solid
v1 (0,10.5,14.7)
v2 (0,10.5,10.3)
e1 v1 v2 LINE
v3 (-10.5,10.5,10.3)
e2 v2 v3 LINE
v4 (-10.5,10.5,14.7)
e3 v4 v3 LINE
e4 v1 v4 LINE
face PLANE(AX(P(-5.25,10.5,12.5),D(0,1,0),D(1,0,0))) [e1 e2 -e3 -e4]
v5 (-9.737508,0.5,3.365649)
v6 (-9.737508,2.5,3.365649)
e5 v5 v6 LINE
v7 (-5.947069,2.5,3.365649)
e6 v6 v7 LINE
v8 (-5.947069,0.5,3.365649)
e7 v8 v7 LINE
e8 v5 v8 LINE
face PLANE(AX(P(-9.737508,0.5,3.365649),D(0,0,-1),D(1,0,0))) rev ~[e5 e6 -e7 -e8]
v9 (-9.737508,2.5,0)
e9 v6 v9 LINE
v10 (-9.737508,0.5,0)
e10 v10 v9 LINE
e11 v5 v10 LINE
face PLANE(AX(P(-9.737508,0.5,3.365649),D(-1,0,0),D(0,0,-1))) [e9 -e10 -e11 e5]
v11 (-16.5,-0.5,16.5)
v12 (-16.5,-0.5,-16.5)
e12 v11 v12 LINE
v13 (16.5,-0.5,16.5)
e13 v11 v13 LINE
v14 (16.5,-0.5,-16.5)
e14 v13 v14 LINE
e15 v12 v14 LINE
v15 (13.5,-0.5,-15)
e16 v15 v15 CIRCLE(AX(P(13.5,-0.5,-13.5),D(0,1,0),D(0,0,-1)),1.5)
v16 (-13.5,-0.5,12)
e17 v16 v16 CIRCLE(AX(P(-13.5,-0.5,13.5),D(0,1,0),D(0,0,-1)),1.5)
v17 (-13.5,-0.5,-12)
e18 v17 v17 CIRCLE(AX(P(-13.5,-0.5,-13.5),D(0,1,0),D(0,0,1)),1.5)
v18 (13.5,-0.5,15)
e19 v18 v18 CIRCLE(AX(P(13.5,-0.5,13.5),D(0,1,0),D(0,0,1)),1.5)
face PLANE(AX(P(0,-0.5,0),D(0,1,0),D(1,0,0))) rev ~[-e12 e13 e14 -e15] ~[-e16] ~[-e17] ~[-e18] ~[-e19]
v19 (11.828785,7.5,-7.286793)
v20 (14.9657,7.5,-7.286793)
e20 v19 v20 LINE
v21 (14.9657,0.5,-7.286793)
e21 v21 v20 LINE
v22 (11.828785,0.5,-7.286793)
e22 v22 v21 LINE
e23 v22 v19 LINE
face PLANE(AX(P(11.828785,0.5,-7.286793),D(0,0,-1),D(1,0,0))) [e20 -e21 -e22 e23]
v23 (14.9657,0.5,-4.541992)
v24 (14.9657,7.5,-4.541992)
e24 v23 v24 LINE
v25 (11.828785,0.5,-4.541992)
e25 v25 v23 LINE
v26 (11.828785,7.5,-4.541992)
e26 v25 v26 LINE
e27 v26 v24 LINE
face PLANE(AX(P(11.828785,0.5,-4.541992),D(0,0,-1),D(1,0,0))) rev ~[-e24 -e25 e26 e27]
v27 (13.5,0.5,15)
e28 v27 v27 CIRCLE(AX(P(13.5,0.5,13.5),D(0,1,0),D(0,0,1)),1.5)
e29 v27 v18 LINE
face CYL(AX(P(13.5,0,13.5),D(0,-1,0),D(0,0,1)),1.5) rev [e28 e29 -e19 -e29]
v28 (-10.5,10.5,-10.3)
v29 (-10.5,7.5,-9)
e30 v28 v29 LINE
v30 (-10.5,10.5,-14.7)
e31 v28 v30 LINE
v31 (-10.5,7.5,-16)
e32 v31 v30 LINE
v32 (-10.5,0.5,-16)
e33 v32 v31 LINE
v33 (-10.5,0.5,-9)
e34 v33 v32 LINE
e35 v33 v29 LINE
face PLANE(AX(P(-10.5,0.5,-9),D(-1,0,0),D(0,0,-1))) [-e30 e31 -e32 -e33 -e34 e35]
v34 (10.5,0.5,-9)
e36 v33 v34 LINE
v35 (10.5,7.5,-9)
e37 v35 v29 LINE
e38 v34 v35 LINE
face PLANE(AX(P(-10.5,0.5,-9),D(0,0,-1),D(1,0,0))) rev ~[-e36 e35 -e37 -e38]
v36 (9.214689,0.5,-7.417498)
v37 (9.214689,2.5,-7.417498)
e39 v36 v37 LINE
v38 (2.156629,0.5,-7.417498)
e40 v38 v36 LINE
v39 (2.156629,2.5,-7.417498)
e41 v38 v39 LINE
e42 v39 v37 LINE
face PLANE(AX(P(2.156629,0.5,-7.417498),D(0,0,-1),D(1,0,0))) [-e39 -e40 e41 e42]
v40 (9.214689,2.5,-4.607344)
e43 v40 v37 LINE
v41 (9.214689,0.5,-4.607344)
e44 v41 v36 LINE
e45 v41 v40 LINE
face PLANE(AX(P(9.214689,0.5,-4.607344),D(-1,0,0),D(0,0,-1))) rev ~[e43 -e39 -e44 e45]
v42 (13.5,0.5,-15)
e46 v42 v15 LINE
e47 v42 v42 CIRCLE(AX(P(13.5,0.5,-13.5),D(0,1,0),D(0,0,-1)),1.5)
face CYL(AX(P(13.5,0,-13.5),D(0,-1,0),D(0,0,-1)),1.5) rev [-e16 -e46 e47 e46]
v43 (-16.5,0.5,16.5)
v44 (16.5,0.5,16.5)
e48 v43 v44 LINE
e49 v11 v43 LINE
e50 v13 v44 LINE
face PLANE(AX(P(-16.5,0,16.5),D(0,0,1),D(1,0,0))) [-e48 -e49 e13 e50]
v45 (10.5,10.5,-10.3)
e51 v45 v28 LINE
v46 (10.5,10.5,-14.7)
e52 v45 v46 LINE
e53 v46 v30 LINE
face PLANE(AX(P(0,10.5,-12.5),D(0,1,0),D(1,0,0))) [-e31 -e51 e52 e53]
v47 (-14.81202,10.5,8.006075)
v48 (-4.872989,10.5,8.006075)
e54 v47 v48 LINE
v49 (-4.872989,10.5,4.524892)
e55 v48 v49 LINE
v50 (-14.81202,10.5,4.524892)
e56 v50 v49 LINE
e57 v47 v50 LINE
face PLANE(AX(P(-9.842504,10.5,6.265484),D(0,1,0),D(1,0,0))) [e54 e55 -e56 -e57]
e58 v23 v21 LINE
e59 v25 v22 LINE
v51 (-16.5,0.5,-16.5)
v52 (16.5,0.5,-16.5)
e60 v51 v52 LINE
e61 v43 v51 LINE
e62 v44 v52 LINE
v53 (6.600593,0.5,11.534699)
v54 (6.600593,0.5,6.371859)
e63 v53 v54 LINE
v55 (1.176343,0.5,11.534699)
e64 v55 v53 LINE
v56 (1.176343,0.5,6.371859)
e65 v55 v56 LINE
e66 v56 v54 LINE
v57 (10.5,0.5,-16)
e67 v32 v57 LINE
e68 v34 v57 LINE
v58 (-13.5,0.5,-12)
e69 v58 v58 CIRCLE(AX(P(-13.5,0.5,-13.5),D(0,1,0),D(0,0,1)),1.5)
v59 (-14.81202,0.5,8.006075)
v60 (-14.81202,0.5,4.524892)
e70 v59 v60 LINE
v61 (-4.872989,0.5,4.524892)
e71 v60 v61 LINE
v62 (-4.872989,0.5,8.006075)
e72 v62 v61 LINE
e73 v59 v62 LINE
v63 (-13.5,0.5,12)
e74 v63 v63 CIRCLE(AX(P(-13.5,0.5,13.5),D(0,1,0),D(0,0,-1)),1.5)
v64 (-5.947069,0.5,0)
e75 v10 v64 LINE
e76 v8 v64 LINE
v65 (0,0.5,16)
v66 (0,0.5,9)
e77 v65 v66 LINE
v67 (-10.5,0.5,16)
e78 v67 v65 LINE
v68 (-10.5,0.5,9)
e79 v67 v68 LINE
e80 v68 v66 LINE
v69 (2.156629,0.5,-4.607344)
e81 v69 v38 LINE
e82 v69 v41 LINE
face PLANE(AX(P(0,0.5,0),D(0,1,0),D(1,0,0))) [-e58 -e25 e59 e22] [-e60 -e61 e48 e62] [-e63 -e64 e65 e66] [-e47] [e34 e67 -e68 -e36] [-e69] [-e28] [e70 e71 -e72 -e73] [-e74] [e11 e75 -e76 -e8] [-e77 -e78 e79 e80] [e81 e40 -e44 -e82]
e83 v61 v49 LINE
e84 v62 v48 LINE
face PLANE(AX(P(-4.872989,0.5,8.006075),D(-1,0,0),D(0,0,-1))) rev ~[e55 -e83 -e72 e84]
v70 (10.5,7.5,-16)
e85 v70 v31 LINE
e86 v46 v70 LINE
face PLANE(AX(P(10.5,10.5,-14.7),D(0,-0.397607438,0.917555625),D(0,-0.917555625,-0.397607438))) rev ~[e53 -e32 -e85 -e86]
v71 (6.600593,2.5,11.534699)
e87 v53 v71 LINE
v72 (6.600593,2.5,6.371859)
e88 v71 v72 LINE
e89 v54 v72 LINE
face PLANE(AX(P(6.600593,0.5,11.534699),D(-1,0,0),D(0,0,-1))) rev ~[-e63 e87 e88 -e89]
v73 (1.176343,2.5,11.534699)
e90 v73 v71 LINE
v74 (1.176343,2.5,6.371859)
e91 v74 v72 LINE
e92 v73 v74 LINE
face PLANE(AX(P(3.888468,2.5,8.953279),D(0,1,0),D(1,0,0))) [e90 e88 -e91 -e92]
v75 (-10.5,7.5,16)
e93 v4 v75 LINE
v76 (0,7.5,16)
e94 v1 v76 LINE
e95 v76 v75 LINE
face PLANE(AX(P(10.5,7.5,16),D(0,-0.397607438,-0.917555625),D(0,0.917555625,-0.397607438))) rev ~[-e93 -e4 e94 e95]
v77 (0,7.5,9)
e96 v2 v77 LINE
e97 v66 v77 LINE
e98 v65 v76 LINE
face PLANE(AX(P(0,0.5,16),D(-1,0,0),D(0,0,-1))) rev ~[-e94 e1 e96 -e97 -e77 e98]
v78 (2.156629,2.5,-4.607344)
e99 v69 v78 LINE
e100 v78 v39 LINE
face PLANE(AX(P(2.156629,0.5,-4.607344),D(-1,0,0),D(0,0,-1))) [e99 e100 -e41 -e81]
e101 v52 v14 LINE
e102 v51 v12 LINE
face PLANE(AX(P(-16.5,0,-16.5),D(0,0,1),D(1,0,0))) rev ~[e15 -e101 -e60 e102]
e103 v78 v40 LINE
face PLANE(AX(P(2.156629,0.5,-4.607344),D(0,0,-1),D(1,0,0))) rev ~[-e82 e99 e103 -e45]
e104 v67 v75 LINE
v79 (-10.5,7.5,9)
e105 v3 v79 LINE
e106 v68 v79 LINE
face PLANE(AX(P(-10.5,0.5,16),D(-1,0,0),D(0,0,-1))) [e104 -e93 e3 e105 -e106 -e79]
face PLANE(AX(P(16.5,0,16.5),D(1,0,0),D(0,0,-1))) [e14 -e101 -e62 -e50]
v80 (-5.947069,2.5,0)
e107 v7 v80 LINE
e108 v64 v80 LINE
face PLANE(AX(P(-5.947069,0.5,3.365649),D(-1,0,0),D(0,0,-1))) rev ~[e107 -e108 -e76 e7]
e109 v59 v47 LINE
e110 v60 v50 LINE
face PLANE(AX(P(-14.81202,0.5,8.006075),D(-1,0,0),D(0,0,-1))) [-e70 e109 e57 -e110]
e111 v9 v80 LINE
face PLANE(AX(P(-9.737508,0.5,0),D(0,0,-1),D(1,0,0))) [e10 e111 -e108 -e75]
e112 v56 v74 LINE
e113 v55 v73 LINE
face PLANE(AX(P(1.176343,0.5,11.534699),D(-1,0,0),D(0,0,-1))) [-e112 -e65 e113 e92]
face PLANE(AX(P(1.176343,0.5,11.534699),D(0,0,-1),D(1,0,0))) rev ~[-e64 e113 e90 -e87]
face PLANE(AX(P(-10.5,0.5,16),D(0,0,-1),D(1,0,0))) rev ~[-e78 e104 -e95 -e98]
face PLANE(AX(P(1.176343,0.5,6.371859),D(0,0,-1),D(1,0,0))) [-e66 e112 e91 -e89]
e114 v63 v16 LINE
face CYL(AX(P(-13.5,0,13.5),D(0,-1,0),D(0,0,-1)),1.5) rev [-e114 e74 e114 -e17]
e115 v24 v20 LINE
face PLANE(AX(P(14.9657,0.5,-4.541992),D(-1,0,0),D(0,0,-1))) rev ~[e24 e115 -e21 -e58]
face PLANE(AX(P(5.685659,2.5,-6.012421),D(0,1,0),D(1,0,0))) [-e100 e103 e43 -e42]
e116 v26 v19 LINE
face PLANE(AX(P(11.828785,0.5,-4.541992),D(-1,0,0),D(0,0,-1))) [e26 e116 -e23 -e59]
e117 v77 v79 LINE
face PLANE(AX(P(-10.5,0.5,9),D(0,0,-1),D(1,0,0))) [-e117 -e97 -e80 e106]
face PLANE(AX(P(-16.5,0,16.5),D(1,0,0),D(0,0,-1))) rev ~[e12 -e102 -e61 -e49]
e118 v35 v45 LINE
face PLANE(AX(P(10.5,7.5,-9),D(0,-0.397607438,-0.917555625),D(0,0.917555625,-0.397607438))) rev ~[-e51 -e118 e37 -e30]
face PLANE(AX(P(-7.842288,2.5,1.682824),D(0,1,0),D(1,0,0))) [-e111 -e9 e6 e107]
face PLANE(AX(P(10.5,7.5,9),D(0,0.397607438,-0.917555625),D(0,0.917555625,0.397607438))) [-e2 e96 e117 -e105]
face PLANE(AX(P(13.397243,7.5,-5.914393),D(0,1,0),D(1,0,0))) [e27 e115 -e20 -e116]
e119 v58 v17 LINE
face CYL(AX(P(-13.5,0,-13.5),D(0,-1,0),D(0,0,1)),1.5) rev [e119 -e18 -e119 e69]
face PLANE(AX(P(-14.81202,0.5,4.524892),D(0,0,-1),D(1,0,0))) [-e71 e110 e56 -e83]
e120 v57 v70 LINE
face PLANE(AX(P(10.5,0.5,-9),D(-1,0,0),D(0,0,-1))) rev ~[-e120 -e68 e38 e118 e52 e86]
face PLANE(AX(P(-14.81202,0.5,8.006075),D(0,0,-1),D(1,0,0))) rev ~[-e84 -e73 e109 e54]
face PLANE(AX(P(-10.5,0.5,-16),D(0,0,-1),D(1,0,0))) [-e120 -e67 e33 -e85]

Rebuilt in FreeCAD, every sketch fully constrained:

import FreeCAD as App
import Part
import Sketcher

doc = App.newDocument("Part")
body = doc.addObject("PartDesign::Body", "Body")

sketch1 = doc.addObject("Sketcher::SketchObject", "Sketch")
body.addObject(sketch1)
sketch1.AttachmentSupport = (doc.XZ_Plane, [""])
sketch1.MapMode = "FlatFace"
sketch1.addGeometry([
    Part.LineSegment(App.Vector(-16.5, -16.5, 0), App.Vector(-16.5, 16.5, 0)),
    Part.LineSegment(App.Vector(-16.5, 16.5, 0), App.Vector(16.5, 16.5, 0)),
    Part.LineSegment(App.Vector(16.5, 16.5, 0), App.Vector(16.5, -16.5, 0)),
    Part.LineSegment(App.Vector(16.5, -16.5, 0), App.Vector(-16.5, -16.5, 0)),
    Part.Circle(App.Vector(-13.5, 13.5, 0), App.Vector(0, 0, 1), 1.5),
    Part.Circle(App.Vector(13.5, 13.5, 0), App.Vector(0, 0, 1), 1.5),
    Part.Circle(App.Vector(-13.5, -13.5, 0), App.Vector(0, 0, 1), 1.5),
    Part.Circle(App.Vector(13.5, -13.5, 0), App.Vector(0, 0, 1), 1.5),
], False)
sketch1.addConstraint([
    Sketcher.Constraint("Coincident", 0, 2, 1, 1),
    Sketcher.Constraint("Coincident", 1, 2, 2, 1),
    Sketcher.Constraint("Coincident", 2, 2, 3, 1),
    Sketcher.Constraint("Coincident", 3, 2, 0, 1),
    Sketcher.Constraint("Vertical", 0),
    Sketcher.Constraint("Horizontal", 1),
    Sketcher.Constraint("Vertical", 2),
    Sketcher.Constraint("Horizontal", 3),
    Sketcher.Constraint("Equal", 4, 5),
    Sketcher.Constraint("Equal", 5, 6),
    Sketcher.Constraint("Equal", 6, 7),
    Sketcher.Constraint("Symmetric", 5, 3, 6, 3, -1, 1),
    Sketcher.Constraint("Symmetric", 4, 3, 7, 3, -1, 1),
    Sketcher.Constraint("Symmetric", 0, 2, 2, 2, -1, 1),
    Sketcher.Constraint("Symmetric", 4, 3, 5, 3, -2),
    Sketcher.Constraint("Equal", 3, 0),
    Sketcher.Constraint("Diameter", 4, 3.0),
    Sketcher.Constraint("DistanceX", 1, 1, 1, 2, 33.0),
    Sketcher.Constraint("DistanceX", 4, 3, 5, 3, 27.0),
    Sketcher.Constraint("DistanceY", 6, 3, 4, 3, 27.0),
])
pad1 = doc.addObject("PartDesign::Pad", "Pad")
body.addObject(pad1)
pad1.Profile = sketch1
pad1.Length = 1
pad1.Midplane = True

sketch2 = doc.addObject("Sketcher::SketchObject", "Sketch001")
body.addObject(sketch2)
sketch2.AttachmentSupport = (doc.XZ_Plane, [""])
sketch2.MapMode = "FlatFace"
sketch2.AttachmentOffset = App.Placement(App.Vector(0, 0, -0.5), App.Rotation())
sketch2.addGeometry([
    Part.LineSegment(App.Vector(-10.5, -16, 0), App.Vector(-10.5, -9, 0)),
    Part.LineSegment(App.Vector(-10.5, -9, 0), App.Vector(10.5, -9, 0)),
    Part.LineSegment(App.Vector(10.5, -9, 0), App.Vector(10.5, -16, 0)),
    Part.LineSegment(App.Vector(10.5, -16, 0), App.Vector(-10.5, -16, 0)),
    Part.LineSegment(App.Vector(-10.5, 9, 0), App.Vector(-10.5, 16, 0)),
    Part.LineSegment(App.Vector(-10.5, 16, 0), App.Vector(0, 16, 0)),
    Part.LineSegment(App.Vector(0, 16, 0), App.Vector(0, 9, 0)),
    Part.LineSegment(App.Vector(0, 9, 0), App.Vector(-10.5, 9, 0)),
    Part.LineSegment(App.Vector(-14.8, 4.5, 0), App.Vector(-14.8, 8, 0)),
    Part.LineSegment(App.Vector(-14.8, 8, 0), App.Vector(-4.9, 8, 0)),
    Part.LineSegment(App.Vector(-4.9, 8, 0), App.Vector(-4.9, 4.5, 0)),
    Part.LineSegment(App.Vector(-4.9, 4.5, 0), App.Vector(-14.8, 4.5, 0)),
], False)
sketch2.addConstraint([
    Sketcher.Constraint("Coincident", 0, 2, 1, 1),
    Sketcher.Constraint("Coincident", 1, 2, 2, 1),
    Sketcher.Constraint("Coincident", 2, 2, 3, 1),
    Sketcher.Constraint("Coincident", 3, 2, 0, 1),
    Sketcher.Constraint("Coincident", 4, 2, 5, 1),
    Sketcher.Constraint("Coincident", 5, 2, 6, 1),
    Sketcher.Constraint("Coincident", 6, 2, 7, 1),
    Sketcher.Constraint("Coincident", 7, 2, 4, 1),
    Sketcher.Constraint("Coincident", 8, 2, 9, 1),
    Sketcher.Constraint("Coincident", 9, 2, 10, 1),
    Sketcher.Constraint("Coincident", 10, 2, 11, 1),
    Sketcher.Constraint("Coincident", 11, 2, 8, 1),
    Sketcher.Constraint("Vertical", 0),
    Sketcher.Constraint("Horizontal", 1),
    Sketcher.Constraint("Vertical", 2),
    Sketcher.Constraint("Horizontal", 3),
    Sketcher.Constraint("Vertical", 4),
    Sketcher.Constraint("Horizontal", 5),
    Sketcher.Constraint("Vertical", 6),
    Sketcher.Constraint("Horizontal", 7),
    Sketcher.Constraint("Vertical", 8),
    Sketcher.Constraint("Horizontal", 9),
    Sketcher.Constraint("Vertical", 10),
    Sketcher.Constraint("Horizontal", 11),
    Sketcher.Constraint("Symmetric", 2, 2, 4, 2, -1, 1),
    Sketcher.Constraint("Symmetric", 0, 2, 7, 2, -1),
    Sketcher.Constraint("PointOnObject", 5, 2, -2),
    Sketcher.Constraint("DistanceX", 1, 1, 1, 2, 21.0),
    Sketcher.Constraint("DistanceY", 0, 1, 0, 2, 7.0),
    Sketcher.Constraint("DistanceY", 0, 2, -1, 1, 9.0),
    Sketcher.Constraint("DistanceX", 9, 1, 9, 2, 9.939031),
    Sketcher.Constraint("DistanceY", 8, 1, 8, 2, 3.481184),
    Sketcher.Constraint("DistanceX", 8, 2, -1, 1, 14.81202),
    Sketcher.Constraint("DistanceY", -1, 1, 10, 2, 4.524892),
])
pad2 = doc.addObject("PartDesign::Pad", "Pad001")
body.addObject(pad2)
pad2.Profile = sketch2
pad2.Length = 10
pad2.Reversed = True

sketch3 = doc.addObject("Sketcher::SketchObject", "Sketch002")
body.addObject(sketch3)
sketch3.AttachmentSupport = (doc.XZ_Plane, [""])
sketch3.MapMode = "FlatFace"
sketch3.AttachmentOffset = App.Placement(App.Vector(0, 0, -0.5), App.Rotation())
sketch3.addGeometry([
    Part.LineSegment(App.Vector(1.2, 6.4, 0), App.Vector(1.2, 11.5, 0)),
    Part.LineSegment(App.Vector(1.2, 11.5, 0), App.Vector(6.6, 11.5, 0)),
    Part.LineSegment(App.Vector(6.6, 11.5, 0), App.Vector(6.6, 6.4, 0)),
    Part.LineSegment(App.Vector(6.6, 6.4, 0), App.Vector(1.2, 6.4, 0)),
    Part.LineSegment(App.Vector(2.2, -7.4, 0), App.Vector(2.2, -4.6, 0)),
    Part.LineSegment(App.Vector(2.2, -4.6, 0), App.Vector(9.2, -4.6, 0)),
    Part.LineSegment(App.Vector(9.2, -4.6, 0), App.Vector(9.2, -7.4, 0)),
    Part.LineSegment(App.Vector(9.2, -7.4, 0), App.Vector(2.2, -7.4, 0)),
    Part.LineSegment(App.Vector(-9.7, 0, 0), App.Vector(-9.7, 3.4, 0)),
    Part.LineSegment(App.Vector(-9.7, 3.4, 0), App.Vector(-5.9, 3.4, 0)),
    Part.LineSegment(App.Vector(-5.9, 3.4, 0), App.Vector(-5.9, 0, 0)),
    Part.LineSegment(App.Vector(-5.9, 0, 0), App.Vector(-9.7, 0, 0)),
], False)
sketch3.addConstraint([
    Sketcher.Constraint("Coincident", 0, 2, 1, 1),
    Sketcher.Constraint("Coincident", 1, 2, 2, 1),
    Sketcher.Constraint("Coincident", 2, 2, 3, 1),
    Sketcher.Constraint("Coincident", 3, 2, 0, 1),
    Sketcher.Constraint("Coincident", 4, 2, 5, 1),
    Sketcher.Constraint("Coincident", 5, 2, 6, 1),
    Sketcher.Constraint("Coincident", 6, 2, 7, 1),
    Sketcher.Constraint("Coincident", 7, 2, 4, 1),
    Sketcher.Constraint("Coincident", 8, 2, 9, 1),
    Sketcher.Constraint("Coincident", 9, 2, 10, 1),
    Sketcher.Constraint("Coincident", 10, 2, 11, 1),
    Sketcher.Constraint("Coincident", 11, 2, 8, 1),
    Sketcher.Constraint("Vertical", 0),
    Sketcher.Constraint("Horizontal", 1),
    Sketcher.Constraint("Vertical", 2),
    Sketcher.Constraint("Horizontal", 3),
    Sketcher.Constraint("Vertical", 4),
    Sketcher.Constraint("Horizontal", 5),
    Sketcher.Constraint("Vertical", 6),
    Sketcher.Constraint("Horizontal", 7),
    Sketcher.Constraint("Vertical", 8),
    Sketcher.Constraint("Horizontal", 9),
    Sketcher.Constraint("Vertical", 10),
    Sketcher.Constraint("Horizontal", 11),
    Sketcher.Constraint("PointOnObject", 10, 2, -1),
    Sketcher.Constraint("DistanceX", 1, 1, 1, 2, 5.42425),
    Sketcher.Constraint("DistanceX", 5, 1, 5, 2, 7.05806),
    Sketcher.Constraint("DistanceX", 9, 1, 9, 2, 3.790439),
    Sketcher.Constraint("DistanceY", 0, 1, 0, 2, 5.16284),
    Sketcher.Constraint("DistanceY", 8, 1, 8, 2, 3.365649),
    Sketcher.Constraint("DistanceY", -1, 1, 0, 2, 11.534699),
    Sketcher.Constraint("DistanceX", 8, 2, 2, 2, 16.338101),
    Sketcher.Constraint("DistanceX", 9, 2, 4, 2, 8.103698),
    Sketcher.Constraint("DistanceY", 4, 1, 4, 2, 2.810153),
    Sketcher.Constraint("DistanceX", -1, 1, 4, 2, 2.156629),
    Sketcher.Constraint("DistanceY", 4, 2, -1, 1, 4.607344),
])
pad3 = doc.addObject("PartDesign::Pad", "Pad002")
body.addObject(pad3)
pad3.Profile = sketch3
pad3.Length = 2
pad3.Reversed = True

sketch4 = doc.addObject("Sketcher::SketchObject", "Sketch003")
body.addObject(sketch4)
sketch4.AttachmentSupport = (doc.XZ_Plane, [""])
sketch4.MapMode = "FlatFace"
sketch4.AttachmentOffset = App.Placement(App.Vector(0, 0, -0.5), App.Rotation())
sketch4.addGeometry([
    Part.LineSegment(App.Vector(11.8, -7.3, 0), App.Vector(11.8, -4.5, 0)),
    Part.LineSegment(App.Vector(11.8, -4.5, 0), App.Vector(15, -4.5, 0)),
    Part.LineSegment(App.Vector(15, -4.5, 0), App.Vector(15, -7.3, 0)),
    Part.LineSegment(App.Vector(15, -7.3, 0), App.Vector(11.8, -7.3, 0)),
], False)
sketch4.addConstraint([
    Sketcher.Constraint("Coincident", 0, 2, 1, 1),
    Sketcher.Constraint("Coincident", 1, 2, 2, 1),
    Sketcher.Constraint("Coincident", 2, 2, 3, 1),
    Sketcher.Constraint("Coincident", 3, 2, 0, 1),
    Sketcher.Constraint("Vertical", 0),
    Sketcher.Constraint("Horizontal", 1),
    Sketcher.Constraint("Vertical", 2),
    Sketcher.Constraint("Horizontal", 3),
    Sketcher.Constraint("DistanceY", 0, 1, 0, 2, 2.744801),
    Sketcher.Constraint("DistanceX", -1, 1, 1, 2, 14.9657),
    Sketcher.Constraint("DistanceX", 1, 1, 1, 2, 3.136915),
    Sketcher.Constraint("DistanceY", 0, 2, -1, 1, 4.541992),
])
pad4 = doc.addObject("PartDesign::Pad", "Pad003")
body.addObject(pad4)
pad4.Profile = sketch4
pad4.Length = 7
pad4.Reversed = True

sketch5 = doc.addObject("Sketcher::SketchObject", "Sketch004")
body.addObject(sketch5)
sketch5.AttachmentSupport = (doc.YZ_Plane, [""])
sketch5.MapMode = "FlatFace"
sketch5.AttachmentOffset = App.Placement(App.Vector(0, 0, 10.5), App.Rotation())
sketch5.addGeometry([
    Part.LineSegment(App.Vector(10.5, 16, 0), App.Vector(7.5, 16, 0)),
    Part.LineSegment(App.Vector(7.5, 16, 0), App.Vector(10.5, 14.7, 0)),
    Part.LineSegment(App.Vector(10.5, 14.7, 0), App.Vector(10.5, 16, 0)),
    Part.LineSegment(App.Vector(10.5, 9, 0), App.Vector(10.5, 10.3, 0)),
    Part.LineSegment(App.Vector(10.5, 10.3, 0), App.Vector(7.5, 9, 0)),
    Part.LineSegment(App.Vector(7.5, 9, 0), App.Vector(10.5, 9, 0)),
    Part.LineSegment(App.Vector(7.5, -9, 0), App.Vector(10.5, -10.3, 0)),
    Part.LineSegment(App.Vector(10.5, -10.3, 0), App.Vector(10.5, -9, 0)),
    Part.LineSegment(App.Vector(10.5, -9, 0), App.Vector(7.5, -9, 0)),
    Part.LineSegment(App.Vector(10.5, -16, 0), App.Vector(10.5, -14.7, 0)),
    Part.LineSegment(App.Vector(10.5, -14.7, 0), App.Vector(7.5, -16, 0)),
    Part.LineSegment(App.Vector(7.5, -16, 0), App.Vector(10.5, -16, 0)),
], False)
sketch5.addConstraint([
    Sketcher.Constraint("Coincident", 0, 2, 1, 1),
    Sketcher.Constraint("Coincident", 1, 2, 2, 1),
    Sketcher.Constraint("Coincident", 2, 2, 0, 1),
    Sketcher.Constraint("Coincident", 3, 2, 4, 1),
    Sketcher.Constraint("Coincident", 4, 2, 5, 1),
    Sketcher.Constraint("Coincident", 5, 2, 3, 1),
    Sketcher.Constraint("Coincident", 6, 2, 7, 1),
    Sketcher.Constraint("Coincident", 7, 2, 8, 1),
    Sketcher.Constraint("Coincident", 8, 2, 6, 1),
    Sketcher.Constraint("Coincident", 9, 2, 10, 1),
    Sketcher.Constraint("Coincident", 10, 2, 11, 1),
    Sketcher.Constraint("Coincident", 11, 2, 9, 1),
    Sketcher.Constraint("Horizontal", 0),
    Sketcher.Constraint("Vertical", 2),
    Sketcher.Constraint("Vertical", 3),
    Sketcher.Constraint("Horizontal", 5),
    Sketcher.Constraint("Vertical", 7),
    Sketcher.Constraint("Horizontal", 8),
    Sketcher.Constraint("Vertical", 9),
    Sketcher.Constraint("Horizontal", 11),
    Sketcher.Constraint("Symmetric", 3, 2, 6, 2, -1),
    Sketcher.Constraint("Symmetric", 4, 2, 8, 2, -1),
    Sketcher.Constraint("Symmetric", 1, 2, 9, 2, -1),
    Sketcher.Constraint("Symmetric", 0, 2, 10, 2, -1),
    Sketcher.Constraint("Parallel", 1, 6),
    Sketcher.Constraint("Vertical", 2, 2, 3, 2),
    Sketcher.Constraint("Vertical", 0, 2, 4, 2),
    Sketcher.Constraint("DistanceX", 0, 2, 0, 1, 3.0),
    Sketcher.Constraint("DistanceY", 2, 1, 2, 2, 1.3),
    Sketcher.Constraint("DistanceY", -1, 1, 0, 2, 16.0),
    Sketcher.Constraint("DistanceY", -1, 1, 4, 2, 9.0),
    Sketcher.Constraint("DistanceX", -1, 1, 0, 2, 7.5),
])
pocket1 = doc.addObject("PartDesign::Pocket", "Pocket")
body.addObject(pocket1)
pocket1.Profile = sketch5
pocket1.Length = 24

doc.recompute()
